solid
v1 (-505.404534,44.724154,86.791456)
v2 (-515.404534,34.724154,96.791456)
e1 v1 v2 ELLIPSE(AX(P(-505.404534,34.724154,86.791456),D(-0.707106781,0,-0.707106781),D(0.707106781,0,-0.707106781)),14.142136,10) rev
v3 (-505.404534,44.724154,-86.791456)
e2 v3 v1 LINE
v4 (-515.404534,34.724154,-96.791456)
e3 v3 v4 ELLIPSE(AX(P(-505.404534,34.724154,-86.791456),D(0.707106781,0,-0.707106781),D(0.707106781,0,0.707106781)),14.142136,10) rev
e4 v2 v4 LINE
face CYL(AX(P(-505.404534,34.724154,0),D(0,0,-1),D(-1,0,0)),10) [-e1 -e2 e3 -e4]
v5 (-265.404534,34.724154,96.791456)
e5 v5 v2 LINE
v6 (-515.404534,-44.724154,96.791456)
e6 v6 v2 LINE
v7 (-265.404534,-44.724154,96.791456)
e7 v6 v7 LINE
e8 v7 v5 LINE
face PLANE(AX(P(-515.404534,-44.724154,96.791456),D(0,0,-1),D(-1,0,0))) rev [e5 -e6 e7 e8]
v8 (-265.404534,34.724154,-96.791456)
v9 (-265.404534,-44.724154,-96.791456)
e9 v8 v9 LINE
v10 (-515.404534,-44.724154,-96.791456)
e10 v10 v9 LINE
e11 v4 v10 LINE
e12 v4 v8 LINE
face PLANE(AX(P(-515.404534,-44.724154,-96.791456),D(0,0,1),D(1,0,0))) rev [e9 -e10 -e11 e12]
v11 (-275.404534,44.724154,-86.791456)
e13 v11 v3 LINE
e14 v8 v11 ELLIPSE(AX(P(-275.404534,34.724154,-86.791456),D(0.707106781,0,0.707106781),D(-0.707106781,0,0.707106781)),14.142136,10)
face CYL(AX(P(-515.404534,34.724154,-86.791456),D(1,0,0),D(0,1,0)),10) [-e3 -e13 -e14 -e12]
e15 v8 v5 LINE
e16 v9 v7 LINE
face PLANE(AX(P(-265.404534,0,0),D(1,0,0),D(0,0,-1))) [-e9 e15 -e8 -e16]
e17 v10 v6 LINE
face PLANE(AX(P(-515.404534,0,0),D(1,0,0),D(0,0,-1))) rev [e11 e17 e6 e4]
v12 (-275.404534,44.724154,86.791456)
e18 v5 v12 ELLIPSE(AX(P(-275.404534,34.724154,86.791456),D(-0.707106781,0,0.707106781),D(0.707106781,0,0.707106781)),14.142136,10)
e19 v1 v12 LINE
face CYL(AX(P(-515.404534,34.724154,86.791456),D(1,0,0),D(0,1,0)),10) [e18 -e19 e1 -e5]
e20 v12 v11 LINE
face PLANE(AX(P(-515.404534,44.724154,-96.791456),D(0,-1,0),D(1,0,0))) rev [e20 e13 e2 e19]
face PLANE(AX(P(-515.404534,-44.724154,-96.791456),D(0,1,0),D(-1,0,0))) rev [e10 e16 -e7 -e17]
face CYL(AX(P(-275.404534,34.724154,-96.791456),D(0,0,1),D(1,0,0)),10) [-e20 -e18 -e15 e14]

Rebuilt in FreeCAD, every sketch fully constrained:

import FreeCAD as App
import Part
import Sketcher
Q = App.Units.Quantity


def edges_at(feature, points):
    """Names of the edges that pass closest to the given points."""
    edges = feature.Shape.Edges
    near = lambda p: min(range(len(edges)), key=lambda i: edges[i].distToShape(Part.Vertex(*p))[0])
    return sorted({f"Edge{near(p) + 1}" for p in points})

doc = App.newDocument("Part")
params = doc.addObject("Spreadsheet::Sheet", "Params")
for row, (alias, value) in enumerate([
    ("pad1_length", "250 mm"),
    ("fillet_radius", "10 mm"),
], start=1):
    params.set(f"A{row}", alias)
    params.set(f"B{row}", "=" + value)
    params.setAlias(f"B{row}", alias)

body = doc.addObject("PartDesign::Body", "Body")

# Sketch on YZ plane
sketch1 = doc.addObject("Sketcher::SketchObject", "Sketch")
body.addObject(sketch1)
sketch1.AttachmentSupport = (doc.YZ_Plane, [""])
sketch1.MapMode = "FlatFace"
sketch1.AttachmentOffset = App.Placement(App.Vector(0, 0, -265.404534), App.Rotation())
sketch1.addGeometry([
    Part.LineSegment(App.Vector(44.724154, -96.791456, 0), App.Vector(-44.724154, -96.791456, 0)),
    Part.LineSegment(App.Vector(-44.724154, -96.791456, 0), App.Vector(-44.724154, 96.791456, 0)),
    Part.LineSegment(App.Vector(-44.724154, 96.791456, 0), App.Vector(44.724154, 96.791456, 0)),
    Part.LineSegment(App.Vector(44.724154, 96.791456, 0), App.Vector(44.724154, -96.791456, 0)),
], False)
sketch1.addConstraint([
    Sketcher.Constraint("Coincident", 0, 2, 1, 1),
    Sketcher.Constraint("Coincident", 1, 2, 2, 1),
    Sketcher.Constraint("Coincident", 2, 2, 3, 1),
    Sketcher.Constraint("Coincident", 3, 2, 0, 1),
    Sketcher.Constraint("Horizontal", 0),
    Sketcher.Constraint("Vertical", 1),
    Sketcher.Constraint("Horizontal", 2),
    Sketcher.Constraint("Vertical", 3),
    Sketcher.Constraint("Symmetric", 0, 2, 2, 2, -1, 1),
    Sketcher.Constraint("DistanceX", 0, 2, 0, 1, Q("89.448308 mm")),
    Sketcher.Constraint("DistanceY", 1, 1, 1, 2, Q("193.582913 mm")),
])
pad1 = doc.addObject("PartDesign::Pad", "Pad")
body.addObject(pad1)
pad1.Profile = sketch1
pad1.setExpression("Length", "Params.pad1_length")
pad1.Reversed = True
doc.recompute()

fillet = doc.addObject("PartDesign::Fillet", "Fillet")
body.addObject(fillet)
fillet.Base = (pad1, edges_at(pad1, [
    (-265.405, 44.724, 0),
    (-515.405, 44.724, 0),
    (-390.405, 44.724, -96.791),
    (-390.405, 44.724, 96.791),
]))
fillet.setExpression("Radius", "Params.fillet_radius")

doc.recompute()
